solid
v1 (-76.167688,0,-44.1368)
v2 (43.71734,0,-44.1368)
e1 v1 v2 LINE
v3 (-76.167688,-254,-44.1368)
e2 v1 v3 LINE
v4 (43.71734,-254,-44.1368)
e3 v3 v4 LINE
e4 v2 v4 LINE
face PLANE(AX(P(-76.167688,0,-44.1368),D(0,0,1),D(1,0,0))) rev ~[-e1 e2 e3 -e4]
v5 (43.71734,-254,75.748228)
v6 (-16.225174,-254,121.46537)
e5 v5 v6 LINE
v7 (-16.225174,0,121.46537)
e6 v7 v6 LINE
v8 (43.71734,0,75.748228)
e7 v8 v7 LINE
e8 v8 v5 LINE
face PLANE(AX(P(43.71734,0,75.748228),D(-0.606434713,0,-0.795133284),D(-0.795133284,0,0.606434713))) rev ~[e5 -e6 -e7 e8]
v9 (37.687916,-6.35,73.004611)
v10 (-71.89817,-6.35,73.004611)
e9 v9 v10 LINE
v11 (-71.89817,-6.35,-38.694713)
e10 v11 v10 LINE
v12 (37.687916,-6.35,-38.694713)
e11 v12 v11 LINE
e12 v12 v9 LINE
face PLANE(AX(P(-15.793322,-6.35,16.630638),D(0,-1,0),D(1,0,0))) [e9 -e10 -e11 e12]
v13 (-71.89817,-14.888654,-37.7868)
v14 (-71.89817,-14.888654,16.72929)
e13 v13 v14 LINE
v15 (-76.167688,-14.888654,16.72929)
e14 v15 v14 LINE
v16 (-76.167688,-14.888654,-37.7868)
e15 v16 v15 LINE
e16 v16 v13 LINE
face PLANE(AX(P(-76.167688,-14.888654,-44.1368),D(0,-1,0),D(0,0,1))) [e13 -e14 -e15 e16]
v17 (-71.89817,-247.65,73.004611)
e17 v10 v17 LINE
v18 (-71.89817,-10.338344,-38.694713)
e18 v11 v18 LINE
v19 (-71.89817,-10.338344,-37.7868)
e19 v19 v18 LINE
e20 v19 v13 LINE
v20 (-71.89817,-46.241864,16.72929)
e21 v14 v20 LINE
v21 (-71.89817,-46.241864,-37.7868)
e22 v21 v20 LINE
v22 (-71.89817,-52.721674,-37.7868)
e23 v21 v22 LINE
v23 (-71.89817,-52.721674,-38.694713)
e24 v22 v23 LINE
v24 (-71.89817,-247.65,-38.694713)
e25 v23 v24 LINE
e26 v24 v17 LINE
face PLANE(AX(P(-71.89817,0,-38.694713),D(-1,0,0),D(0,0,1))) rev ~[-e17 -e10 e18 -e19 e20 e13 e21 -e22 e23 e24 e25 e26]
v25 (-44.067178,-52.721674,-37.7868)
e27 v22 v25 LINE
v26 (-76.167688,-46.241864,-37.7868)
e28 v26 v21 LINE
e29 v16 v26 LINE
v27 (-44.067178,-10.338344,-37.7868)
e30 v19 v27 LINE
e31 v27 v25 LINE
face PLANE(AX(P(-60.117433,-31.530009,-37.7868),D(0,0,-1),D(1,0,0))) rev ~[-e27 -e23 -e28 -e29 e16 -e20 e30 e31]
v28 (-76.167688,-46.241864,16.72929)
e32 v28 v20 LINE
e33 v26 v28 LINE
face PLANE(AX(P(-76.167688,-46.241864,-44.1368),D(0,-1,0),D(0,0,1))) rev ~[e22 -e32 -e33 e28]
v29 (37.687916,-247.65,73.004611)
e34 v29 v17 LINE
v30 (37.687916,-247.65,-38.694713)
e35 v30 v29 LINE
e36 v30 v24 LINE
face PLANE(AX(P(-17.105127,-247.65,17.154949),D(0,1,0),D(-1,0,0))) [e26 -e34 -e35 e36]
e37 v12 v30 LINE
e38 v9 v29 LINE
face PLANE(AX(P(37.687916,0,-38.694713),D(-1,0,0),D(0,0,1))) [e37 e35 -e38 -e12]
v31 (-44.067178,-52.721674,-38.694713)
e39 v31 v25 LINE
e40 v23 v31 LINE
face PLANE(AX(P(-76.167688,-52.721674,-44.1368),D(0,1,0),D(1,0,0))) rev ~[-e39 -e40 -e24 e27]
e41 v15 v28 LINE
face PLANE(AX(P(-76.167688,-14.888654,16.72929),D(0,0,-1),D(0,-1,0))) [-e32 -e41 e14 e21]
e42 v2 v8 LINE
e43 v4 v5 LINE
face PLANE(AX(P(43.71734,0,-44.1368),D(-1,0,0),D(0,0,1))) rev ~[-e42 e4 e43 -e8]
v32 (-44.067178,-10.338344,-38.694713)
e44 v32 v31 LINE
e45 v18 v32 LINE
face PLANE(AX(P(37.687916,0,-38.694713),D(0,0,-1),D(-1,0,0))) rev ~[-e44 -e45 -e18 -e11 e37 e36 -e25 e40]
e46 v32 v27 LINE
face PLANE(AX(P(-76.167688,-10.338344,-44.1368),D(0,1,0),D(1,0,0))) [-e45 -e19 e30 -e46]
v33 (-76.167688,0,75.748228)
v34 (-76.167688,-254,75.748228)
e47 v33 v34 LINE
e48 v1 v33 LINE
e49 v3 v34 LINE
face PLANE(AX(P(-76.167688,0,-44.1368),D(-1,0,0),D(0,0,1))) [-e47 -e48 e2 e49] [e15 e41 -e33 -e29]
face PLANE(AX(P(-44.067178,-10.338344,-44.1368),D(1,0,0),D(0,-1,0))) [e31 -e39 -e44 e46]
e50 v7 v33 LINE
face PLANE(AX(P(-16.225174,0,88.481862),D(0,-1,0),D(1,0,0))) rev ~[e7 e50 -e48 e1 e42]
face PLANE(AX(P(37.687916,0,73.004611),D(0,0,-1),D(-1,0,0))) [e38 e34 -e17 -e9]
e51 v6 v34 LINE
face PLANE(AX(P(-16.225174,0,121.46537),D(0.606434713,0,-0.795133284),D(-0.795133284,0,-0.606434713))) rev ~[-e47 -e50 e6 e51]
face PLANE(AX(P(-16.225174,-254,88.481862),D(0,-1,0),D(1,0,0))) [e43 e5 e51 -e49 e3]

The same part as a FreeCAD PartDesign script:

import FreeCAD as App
import Part
import Sketcher
Q = App.Units.Quantity

doc = App.newDocument("Part")
body = doc.addObject("PartDesign::Body", "Body")

# Sketch on XZ plane
sketch1 = body.newObject("Sketcher::SketchObject", "Sketch")
sketch1.AttachmentSupport = (doc.getObject("XZ_Plane"), [""])
sketch1.MapMode = "FlatFace"
sketch1.addGeometry([
    Part.LineSegment(App.Vector(-16, 121, 0), App.Vector(-76, 76, 0)),  # 0
    Part.LineSegment(App.Vector(-76, 76, 0), App.Vector(-76, -44, 0)),  # 1
    Part.LineSegment(App.Vector(-76, -44, 0), App.Vector(44, -44, 0)),  # 2
    Part.LineSegment(App.Vector(44, -44, 0), App.Vector(44, 76, 0)),  # 3
    Part.LineSegment(App.Vector(44, 76, 0), App.Vector(-16, 121, 0)),  # 4
], False)
sketch1.addConstraint([
    Sketcher.Constraint("Coincident", 0, 2, 1, 1),
    Sketcher.Constraint("Coincident", 1, 2, 2, 1),
    Sketcher.Constraint("Coincident", 2, 2, 3, 1),
    Sketcher.Constraint("Coincident", 3, 2, 4, 1),
    Sketcher.Constraint("Coincident", 4, 2, 0, 1),
    Sketcher.Constraint("Vertical", 1),
    Sketcher.Constraint("Horizontal", 2),
    Sketcher.Constraint("Vertical", 3),
    Sketcher.Constraint("Horizontal", 0, 2, 3, 2),
    Sketcher.Constraint("Equal", 2, 1),
    Sketcher.Constraint("Equal", 0, 4),
    Sketcher.Constraint("DistanceX", 2, 1, 2, 2, 119.885028),
    Sketcher.Constraint("DistanceY", 1, 2, -1, 1, 44.1368),
    Sketcher.Constraint("Distance", 0, 75.38675),
    Sketcher.Constraint("DistanceX", 0, 2, -1, 1, 76.167688),
])
pad1 = body.newObject("PartDesign::Pad", "Pad")
pad1.Profile = sketch1
pad1.Length = Q("10 in")

# Sketch on XZ plane
sketch2 = body.newObject("Sketcher::SketchObject", "Sketch001")
sketch2.AttachmentSupport = (doc.getObject("XZ_Plane"), [""])
sketch2.MapMode = "FlatFace"
sketch2.addGeometry([
    Part.LineSegment(App.Vector(38, 73, 0), App.Vector(38, -39, 0)),
    Part.LineSegment(App.Vector(38, -39, 0), App.Vector(-72, -39, 0)),
    Part.LineSegment(App.Vector(-72, -39, 0), App.Vector(-72, 73, 0)),
    Part.LineSegment(App.Vector(-72, 73, 0), App.Vector(38, 73, 0)),
], False)
sketch2.addConstraint([
    Sketcher.Constraint("Coincident", 0, 2, 1, 1),
    Sketcher.Constraint("Coincident", 1, 2, 2, 1),
    Sketcher.Constraint("Coincident", 2, 2, 3, 1),
    Sketcher.Constraint("Coincident", 3, 2, 0, 1),
    Sketcher.Constraint("Vertical", 0),
    Sketcher.Constraint("Horizontal", 1),
    Sketcher.Constraint("Vertical", 2),
    Sketcher.Constraint("Horizontal", 3),
    Sketcher.Constraint("DistanceX", 1, 2, 1, 1, 109.586086),
    Sketcher.Constraint("DistanceY", 0, 2, 0, 1, 111.699324),
    Sketcher.Constraint("DistanceX", 1, 2, -1, 1, 71.89817),
    Sketcher.Constraint("DistanceY", -1, 1, 2, 2, 73.004611),
])
pocket1 = body.newObject("PartDesign::Pocket", "Pocket")
pocket1.Profile = sketch2
pocket1.Length = Q("9.75 in")
pocket1.Reversed = True

# Sketch on YZ plane
sketch3 = body.newObject("Sketcher::SketchObject", "Sketch002")
sketch3.AttachmentSupport = (doc.getObject("YZ_Plane"), [""])
sketch3.MapMode = "FlatFace"
sketch3.AttachmentOffset = App.Placement(App.Vector(0, 0, -76.167688), App.Rotation())
sketch3.addGeometry([
    Part.LineSegment(App.Vector(-15, 17, 0), App.Vector(-15, -44, 0)),
    Part.LineSegment(App.Vector(-15, -44, 0), App.Vector(-46, -44, 0)),
    Part.LineSegment(App.Vector(-46, -44, 0), App.Vector(-46, 17, 0)),
    Part.LineSegment(App.Vector(-46, 17, 0), App.Vector(-15, 17, 0)),
], False)
sketch3.addConstraint([
    Sketcher.Constraint("Coincident", 0, 2, 1, 1),
    Sketcher.Constraint("Coincident", 1, 2, 2, 1),
    Sketcher.Constraint("Coincident", 2, 2, 3, 1),
    Sketcher.Constraint("Coincident", 3, 2, 0, 1),
    Sketcher.Constraint("Vertical", 0),
    Sketcher.Constraint("Horizontal", 1),
    Sketcher.Constraint("Vertical", 2),
    Sketcher.Constraint("Horizontal", 3),
    Sketcher.Constraint("DistanceX", 1, 2, 1, 1, 31.353211),
    Sketcher.Constraint("DistanceY", 0, 2, 0, 1, 60.86609),
    Sketcher.Constraint("DistanceY", 0, 2, -1, 1, 44.1368),
    Sketcher.Constraint("DistanceX", 0, 2, -1, 1, 14.888654),
])
pocket2 = body.newObject("PartDesign::Pocket", "Pocket001")
pocket2.Profile = sketch3
pocket2.Length = Q("1 in")
pocket2.Reversed = True

# Sketch on XZ plane
sketch4 = body.newObject("Sketcher::SketchObject", "Sketch003")
sketch4.AttachmentSupport = (doc.getObject("XZ_Plane"), [""])
sketch4.MapMode = "FlatFace"
sketch4.addGeometry([
    Part.LineSegment(App.Vector(-74, 75, 0), App.Vector(-74, -42, 0)),
    Part.LineSegment(App.Vector(-74, -42, 0), App.Vector(42, -42, 0)),
    Part.LineSegment(App.Vector(42, -42, 0), App.Vector(42, 75, 0)),
    Part.LineSegment(App.Vector(42, 75, 0), App.Vector(-74, 75, 0)),
], False)
sketch4.addConstraint([
    Sketcher.Constraint("Coincident", 0, 2, 1, 1),
    Sketcher.Constraint("Coincident", 1, 2, 2, 1),
    Sketcher.Constraint("Coincident", 2, 2, 3, 1),
    Sketcher.Constraint("Coincident", 3, 2, 0, 1),
    Sketcher.Constraint("Vertical", 0),
    Sketcher.Constraint("Horizontal", 1),
    Sketcher.Constraint("Vertical", 2),
    Sketcher.Constraint("Horizontal", 3),
    Sketcher.Constraint("DistanceX", 1, 1, 1, 2, 116.465766),
    Sketcher.Constraint("DistanceY", 0, 2, 0, 1, 116.456397),
    Sketcher.Constraint("DistanceY", 0, 2, -1, 1, 41.597561),
    Sketcher.Constraint("DistanceX", -1, 1, 1, 2, 42.439561),
])
pad2 = body.newObject("PartDesign::Pad", "Pad001")
pad2.Profile = sketch4
pad2.Length = Q("0.25 in")

# Sketch on XY plane
sketch5 = body.newObject("Sketcher::SketchObject", "Sketch004")
sketch5.AttachmentSupport = (doc.getObject("XY_Plane"), [""])
sketch5.MapMode = "FlatFace"
sketch5.AttachmentOffset = App.Placement(App.Vector(0, 0, -44.1368), App.Rotation())
sketch5.addGeometry([
    Part.LineSegment(App.Vector(-76, -53, 0), App.Vector(-76, -10, 0)),
    Part.LineSegment(App.Vector(-76, -10, 0), App.Vector(-44, -10, 0)),
    Part.LineSegment(App.Vector(-44, -10, 0), App.Vector(-44, -53, 0)),
    Part.LineSegment(App.Vector(-44, -53, 0), App.Vector(-76, -53, 0)),
], False)
sketch5.addConstraint([
    Sketcher.Constraint("Coincident", 0, 2, 1, 1),
    Sketcher.Constraint("Coincident", 1, 2, 2, 1),
    Sketcher.Constraint("Coincident", 2, 2, 3, 1),
    Sketcher.Constraint("Coincident", 3, 2, 0, 1),
    Sketcher.Constraint("Vertical", 0),
    Sketcher.Constraint("Horizontal", 1),
    Sketcher.Constraint("Vertical", 2),
    Sketcher.Constraint("Horizontal", 3),
    Sketcher.Constraint("DistanceX", 1, 1, 1, 2, 32.10051),
    Sketcher.Constraint("DistanceY", 0, 1, 0, 2, 42.383331),
    Sketcher.Constraint("DistanceX", 0, 2, -1, 1, 76.167688),
    Sketcher.Constraint("DistanceY", 0, 2, -1, 1, 10.338344),
])
pad3 = body.newObject("PartDesign::Pad", "Pad002")
pad3.Profile = sketch5
pad3.Length = Q("0.25 in")

doc.recompute()
